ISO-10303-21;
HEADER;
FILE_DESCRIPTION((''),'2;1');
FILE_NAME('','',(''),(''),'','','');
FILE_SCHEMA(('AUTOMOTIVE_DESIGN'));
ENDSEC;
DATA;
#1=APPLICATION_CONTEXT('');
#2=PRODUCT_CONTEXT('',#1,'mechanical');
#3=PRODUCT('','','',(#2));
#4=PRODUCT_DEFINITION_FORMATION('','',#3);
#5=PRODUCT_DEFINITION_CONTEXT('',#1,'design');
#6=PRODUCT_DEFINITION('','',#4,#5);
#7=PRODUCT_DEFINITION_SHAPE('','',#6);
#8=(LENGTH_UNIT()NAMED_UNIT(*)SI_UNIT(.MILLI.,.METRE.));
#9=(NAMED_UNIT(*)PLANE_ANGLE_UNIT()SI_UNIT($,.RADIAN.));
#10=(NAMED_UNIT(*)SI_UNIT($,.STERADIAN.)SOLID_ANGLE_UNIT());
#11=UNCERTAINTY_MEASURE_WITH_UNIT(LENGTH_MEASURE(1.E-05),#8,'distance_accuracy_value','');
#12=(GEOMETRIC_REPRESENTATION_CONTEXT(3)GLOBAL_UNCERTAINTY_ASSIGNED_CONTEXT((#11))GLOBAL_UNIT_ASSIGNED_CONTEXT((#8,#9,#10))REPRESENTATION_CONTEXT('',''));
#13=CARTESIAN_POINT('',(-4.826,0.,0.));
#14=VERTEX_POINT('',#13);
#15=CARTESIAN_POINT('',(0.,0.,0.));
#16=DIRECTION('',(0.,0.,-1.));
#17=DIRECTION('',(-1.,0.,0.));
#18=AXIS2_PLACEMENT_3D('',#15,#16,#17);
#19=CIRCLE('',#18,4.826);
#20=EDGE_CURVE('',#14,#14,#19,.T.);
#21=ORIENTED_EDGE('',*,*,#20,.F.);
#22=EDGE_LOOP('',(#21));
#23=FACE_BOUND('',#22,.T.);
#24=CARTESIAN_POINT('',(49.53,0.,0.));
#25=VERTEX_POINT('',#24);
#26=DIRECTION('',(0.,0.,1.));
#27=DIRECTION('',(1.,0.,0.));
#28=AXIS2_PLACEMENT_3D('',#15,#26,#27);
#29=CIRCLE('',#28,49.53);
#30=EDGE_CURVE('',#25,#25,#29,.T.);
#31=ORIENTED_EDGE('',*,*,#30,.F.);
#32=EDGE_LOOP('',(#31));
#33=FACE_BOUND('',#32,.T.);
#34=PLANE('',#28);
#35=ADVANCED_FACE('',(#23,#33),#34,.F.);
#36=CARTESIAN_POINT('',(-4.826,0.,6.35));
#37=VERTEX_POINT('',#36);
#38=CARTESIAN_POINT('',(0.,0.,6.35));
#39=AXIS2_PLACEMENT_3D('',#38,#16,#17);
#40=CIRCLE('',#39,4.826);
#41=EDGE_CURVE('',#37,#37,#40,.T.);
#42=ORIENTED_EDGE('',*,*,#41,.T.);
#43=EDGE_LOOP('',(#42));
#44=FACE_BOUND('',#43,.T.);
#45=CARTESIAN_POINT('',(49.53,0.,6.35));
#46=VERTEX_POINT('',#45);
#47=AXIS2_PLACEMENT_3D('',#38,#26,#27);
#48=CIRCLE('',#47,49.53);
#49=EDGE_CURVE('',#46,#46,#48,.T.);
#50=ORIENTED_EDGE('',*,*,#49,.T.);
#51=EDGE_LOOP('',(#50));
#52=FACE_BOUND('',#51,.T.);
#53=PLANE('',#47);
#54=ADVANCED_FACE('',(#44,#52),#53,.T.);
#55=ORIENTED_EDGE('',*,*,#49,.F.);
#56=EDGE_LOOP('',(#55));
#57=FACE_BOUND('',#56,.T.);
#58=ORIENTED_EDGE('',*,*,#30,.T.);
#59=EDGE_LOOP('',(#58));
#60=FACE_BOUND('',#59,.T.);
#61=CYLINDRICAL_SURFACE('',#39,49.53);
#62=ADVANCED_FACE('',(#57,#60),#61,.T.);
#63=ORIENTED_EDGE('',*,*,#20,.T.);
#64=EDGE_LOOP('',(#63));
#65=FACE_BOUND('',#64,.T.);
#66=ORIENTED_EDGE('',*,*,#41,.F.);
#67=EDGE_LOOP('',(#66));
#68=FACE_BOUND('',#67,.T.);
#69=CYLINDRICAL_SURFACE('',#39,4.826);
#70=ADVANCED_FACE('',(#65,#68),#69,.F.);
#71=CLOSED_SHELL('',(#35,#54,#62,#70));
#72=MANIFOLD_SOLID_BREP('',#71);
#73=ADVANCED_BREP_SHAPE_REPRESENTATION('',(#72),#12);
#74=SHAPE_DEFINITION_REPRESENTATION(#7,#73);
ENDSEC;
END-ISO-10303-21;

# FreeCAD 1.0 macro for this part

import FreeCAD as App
import Part
import Sketcher
from FreeCAD import Vector
Q = App.Units.Quantity

doc = App.newDocument("Part")
params = doc.addObject("Spreadsheet::Sheet", "Params")
for row, (alias, value) in enumerate([
    ("sketch1_diameter", "3.9 in"),
    ("pad1_length", "0.25 in"),
    ("sketch2_diameter", "0.38 in"),
    ("pocket1_length", "0.25 in"),
], start=1):
    params.set(f"A{row}", alias)
    params.set(f"B{row}", "=" + value)
    params.setAlias(f"B{row}", alias)

body = doc.addObject("PartDesign::Body", "Body")

# Sketch on XY plane
sketch1 = body.newObject("Sketcher::SketchObject", "Sketch")
sketch1.AttachmentSupport = (doc.getObject("XY_Plane"), [""])
sketch1.MapMode = "FlatFace"
sketch1.addGeometry(Part.Circle(Vector(0, 0, 0), Vector(0, 0, 1), 50), False)
sketch1.addConstraint([
    Sketcher.Constraint("Coincident", 0, 3, -1, 1),
    Sketcher.Constraint("Diameter", 0, Q("3.9 in")),
])
sketch1.setExpression("Constraints[1]", "Params.sketch1_diameter")
pad1 = body.newObject("PartDesign::Pad", "Pad")
pad1.Profile = sketch1
pad1.setExpression("Length", "Params.pad1_length")

# Sketch on XY plane
sketch2 = body.newObject("Sketcher::SketchObject", "Sketch001")
sketch2.AttachmentSupport = (doc.getObject("XY_Plane"), [""])
sketch2.MapMode = "FlatFace"
sketch2.addGeometry(Part.Circle(Vector(0, 0, 0), Vector(0, 0, 1), 4.8), False)
sketch2.addConstraint([
    Sketcher.Constraint("Coincident", 0, 3, -1, 1),
    Sketcher.Constraint("Diameter", 0, Q("0.38 in")),
])
sketch2.setExpression("Constraints[1]", "Params.sketch2_diameter")
pocket1 = body.newObject("PartDesign::Pocket", "Pocket")
pocket1.Profile = sketch2
pocket1.setExpression("Length", "Params.pocket1_length")
pocket1.Reversed = True

doc.recompute()
